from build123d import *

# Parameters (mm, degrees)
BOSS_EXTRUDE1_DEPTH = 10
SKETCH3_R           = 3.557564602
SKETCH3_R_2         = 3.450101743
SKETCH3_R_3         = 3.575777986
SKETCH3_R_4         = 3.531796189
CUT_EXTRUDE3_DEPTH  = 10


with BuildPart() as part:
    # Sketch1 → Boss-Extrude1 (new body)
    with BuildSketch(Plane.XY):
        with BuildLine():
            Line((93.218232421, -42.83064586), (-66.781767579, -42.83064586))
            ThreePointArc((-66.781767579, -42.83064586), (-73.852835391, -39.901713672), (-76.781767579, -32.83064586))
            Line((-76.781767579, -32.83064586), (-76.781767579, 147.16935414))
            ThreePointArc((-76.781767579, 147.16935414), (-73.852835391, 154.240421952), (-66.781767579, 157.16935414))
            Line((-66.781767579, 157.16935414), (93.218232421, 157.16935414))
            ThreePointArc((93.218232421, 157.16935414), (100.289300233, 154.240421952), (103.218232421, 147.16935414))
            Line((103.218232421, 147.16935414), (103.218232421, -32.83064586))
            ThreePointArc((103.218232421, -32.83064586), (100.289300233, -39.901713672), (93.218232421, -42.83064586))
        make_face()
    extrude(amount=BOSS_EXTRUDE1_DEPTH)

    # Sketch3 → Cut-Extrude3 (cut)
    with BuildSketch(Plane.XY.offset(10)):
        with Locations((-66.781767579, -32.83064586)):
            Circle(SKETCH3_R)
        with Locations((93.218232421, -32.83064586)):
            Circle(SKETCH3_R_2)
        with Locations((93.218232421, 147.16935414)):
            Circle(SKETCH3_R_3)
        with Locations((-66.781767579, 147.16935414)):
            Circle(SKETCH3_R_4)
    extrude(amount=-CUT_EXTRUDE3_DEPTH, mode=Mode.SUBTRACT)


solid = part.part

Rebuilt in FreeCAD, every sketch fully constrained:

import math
import FreeCAD as App
import Part
import Sketcher
from FreeCAD import Vector

doc = App.newDocument("Part")
body = doc.addObject("PartDesign::Body", "Body")

sketch1 = doc.addObject("Sketcher::SketchObject", "Sketch")
body.addObject(sketch1)
sketch1.AttachmentSupport = (doc.XY_Plane, [""])
sketch1.MapMode = "FlatFace"
sketch1.addGeometry([
    Part.LineSegment(Vector(-67, -43, 0), Vector(93, -43, 0)),
    Part.ArcOfCircle(Part.Circle(Vector(93, -33, 0), Vector(0, 0, 1), 10), math.radians(-90), math.radians(0)),
    Part.LineSegment(Vector(103, -33, 0), Vector(103, 147, 0)),
    Part.ArcOfCircle(Part.Circle(Vector(93, 147, 0), Vector(0, 0, 1), 10), math.radians(0), math.radians(90)),
    Part.LineSegment(Vector(93, 157, 0), Vector(-67, 157, 0)),
    Part.ArcOfCircle(Part.Circle(Vector(-67, 147, 0), Vector(0, 0, 1), 10), math.radians(90), math.radians(180)),
    Part.LineSegment(Vector(-77, 147, 0), Vector(-77, -33, 0)),
    Part.ArcOfCircle(Part.Circle(Vector(-67, -33, 0), Vector(0, 0, 1), 10), math.radians(180), math.radians(270)),
], False)
sketch1.addConstraint([
    Sketcher.Constraint("Tangent", 0, 2, 1, 1),
    Sketcher.Constraint("Tangent", 1, 2, 2, 1),
    Sketcher.Constraint("Tangent", 2, 2, 3, 1),
    Sketcher.Constraint("Tangent", 3, 2, 4, 1),
    Sketcher.Constraint("Tangent", 4, 2, 5, 1),
    Sketcher.Constraint("Tangent", 5, 2, 6, 1),
    Sketcher.Constraint("Tangent", 6, 2, 7, 1),
    Sketcher.Constraint("Tangent", 7, 2, 0, 1),
    Sketcher.Constraint("Horizontal", 0),
    Sketcher.Constraint("Vertical", 2),
    Sketcher.Constraint("Horizontal", 4),
    Sketcher.Constraint("Vertical", 6),
    Sketcher.Constraint("Equal", 1, 3),
    Sketcher.Constraint("Equal", 3, 5),
    Sketcher.Constraint("Equal", 5, 7),
    Sketcher.Constraint("Radius", 1, 10.0),
    Sketcher.Constraint("DistanceX", 0, 1, 0, 2, 160.0),
    Sketcher.Constraint("DistanceY", 2, 1, 2, 2, 180.0),
    Sketcher.Constraint("DistanceX", -1, 1, 1, 3, 93.218232),
    Sketcher.Constraint("DistanceY", 1, 3, -1, 1, 32.830646),
])
pad1 = doc.addObject("PartDesign::Pad", "Pad")
body.addObject(pad1)
pad1.Profile = sketch1
pad1.Length = 10

sketch2 = doc.addObject("Sketcher::SketchObject", "Sketch001")
body.addObject(sketch2)
sketch2.AttachmentSupport = (doc.XY_Plane, [""])
sketch2.MapMode = "FlatFace"
sketch2.AttachmentOffset = App.Placement(Vector(0, 0, 10), App.Rotation())
sketch2.addGeometry([
    Part.Circle(Vector(-66.8, -32.8, 0), Vector(0, 0, 1), 3.6),
    Part.Circle(Vector(93.2, -32.8, 0), Vector(0, 0, 1), 3.5),
    Part.Circle(Vector(93.2, 147.2, 0), Vector(0, 0, 1), 3.6),
    Part.Circle(Vector(-66.8, 147.2, 0), Vector(0, 0, 1), 3.5),
], False)
sketch2.addConstraint([
    Sketcher.Constraint("Horizontal", 0, 3, 1, 3),
    Sketcher.Constraint("Horizontal", 2, 3, 3, 3),
    Sketcher.Constraint("Vertical", 1, 3, 2, 3),
    Sketcher.Constraint("Vertical", 0, 3, 3, 3),
    Sketcher.Constraint("DistanceX", 0, 3, 1, 3, 160.0),
    Sketcher.Constraint("DistanceY", 1, 3, 2, 3, 180.0),
    Sketcher.Constraint("Diameter", 0, 7.115129),
    Sketcher.Constraint("Diameter", 1, 6.900203),
    Sketcher.Constraint("Diameter", 2, 7.151556),
    Sketcher.Constraint("Diameter", 3, 7.063592),
    Sketcher.Constraint("DistanceX", 0, 3, -1, 1, 66.781768),
    Sketcher.Constraint("DistanceY", 0, 3, -1, 1, 32.830646),
])
pocket1 = doc.addObject("PartDesign::Pocket", "Pocket")
body.addObject(pocket1)
pocket1.Profile = sketch2
pocket1.Length = 10

doc.recompute()
